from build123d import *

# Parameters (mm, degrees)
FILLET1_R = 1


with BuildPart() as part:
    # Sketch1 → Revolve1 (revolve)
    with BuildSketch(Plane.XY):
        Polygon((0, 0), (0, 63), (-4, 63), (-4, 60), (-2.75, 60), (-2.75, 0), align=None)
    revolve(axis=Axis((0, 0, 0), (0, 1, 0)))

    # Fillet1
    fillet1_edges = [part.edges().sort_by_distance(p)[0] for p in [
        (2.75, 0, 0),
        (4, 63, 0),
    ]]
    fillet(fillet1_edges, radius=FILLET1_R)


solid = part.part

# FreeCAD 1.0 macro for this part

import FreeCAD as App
import Part
import Sketcher
Q = App.Units.Quantity


def edges_at(feature, points):
    """Names of the edges that pass closest to the given points."""
    edges = feature.Shape.Edges
    near = lambda p: min(range(len(edges)), key=lambda i: edges[i].distToShape(Part.Vertex(*p))[0])
    return sorted({f"Edge{near(p) + 1}" for p in points})


def add_polygon(sketch, points):
    """Adds a closed chain of lines whose ends are joined by coincident constraints."""
    first, n = sketch.GeometryCount, len(points)
    for a, b in zip(points, points[1:] + points[:1]):
        sketch.addGeometry(Part.LineSegment(App.Vector(*a, 0), App.Vector(*b, 0)), False)
    for i in range(n):
        sketch.addConstraint(Sketcher.Constraint("Coincident", first + i, 2, first + (i + 1) % n, 1))

doc = App.newDocument("Part")
params = doc.addObject("Spreadsheet::Sheet", "Params")
for row, (alias, value) in enumerate([
    ("sketch1_width", "4 mm"),
    ("sketch1_height", "63 mm"),
    ("sketch1_height2", "3 mm"),
    ("sketch1_width2", "1.25 mm"),
    ("revolution_angle", "360 deg"),
    ("fillet_radius", "1 mm"),
], start=1):
    params.set(f"A{row}", alias)
    params.set(f"B{row}", "=" + value)
    params.setAlias(f"B{row}", alias)

body = doc.addObject("PartDesign::Body", "Body")

# Sketch on XY plane
sketch1 = body.newObject("Sketcher::SketchObject", "Sketch")
sketch1.AttachmentSupport = (doc.getObject("XY_Plane"), [""])
sketch1.MapMode = "FlatFace"
add_polygon(sketch1, [(0, 0), (0, 63), (-4, 63), (-4, 60), (-2.8, 60), (-2.8, 0)])  # lines 0-5
sketch1.addConstraint(Sketcher.Constraint("Vertical", 0))
sketch1.addConstraint(Sketcher.Constraint("Horizontal", 1))
sketch1.addConstraint(Sketcher.Constraint("Vertical", 2))
sketch1.addConstraint(Sketcher.Constraint("Horizontal", 3))
sketch1.addConstraint(Sketcher.Constraint("Vertical", 4))
sketch1.addConstraint(Sketcher.Constraint("Horizontal", 5))
sketch1.addConstraint(Sketcher.Constraint("Coincident", 5, 2, -1, 1))
sketch1.addConstraint(Sketcher.Constraint("DistanceX", 1, 2, 1, 1, Q("4 mm")))
sketch1.addConstraint(Sketcher.Constraint("DistanceY", 0, 1, 0, 2, Q("63 mm")))
sketch1.addConstraint(Sketcher.Constraint("DistanceY", 2, 2, 2, 1, Q("3 mm")))
sketch1.addConstraint(Sketcher.Constraint("DistanceX", 3, 1, 3, 2, Q("1.25 mm")))
sketch1.setExpression("Constraints[13]", "Params.sketch1_width")
sketch1.setExpression("Constraints[14]", "Params.sketch1_height")
sketch1.setExpression("Constraints[15]", "Params.sketch1_height2")
sketch1.setExpression("Constraints[16]", "Params.sketch1_width2")
revolution = body.newObject("PartDesign::Revolution", "Revolution")
revolution.Profile = sketch1
revolution.ReferenceAxis = (sketch1, ["V_Axis"])
revolution.setExpression("Angle", "Params.revolution_angle")
doc.recompute()

fillet = body.newObject("PartDesign::Fillet", "Fillet")
fillet.Base = (revolution, edges_at(revolution, [(2.75, 0, 0), (4, 63, 0)]))
fillet.setExpression("Radius", "Params.fillet_radius")

doc.recompute()
